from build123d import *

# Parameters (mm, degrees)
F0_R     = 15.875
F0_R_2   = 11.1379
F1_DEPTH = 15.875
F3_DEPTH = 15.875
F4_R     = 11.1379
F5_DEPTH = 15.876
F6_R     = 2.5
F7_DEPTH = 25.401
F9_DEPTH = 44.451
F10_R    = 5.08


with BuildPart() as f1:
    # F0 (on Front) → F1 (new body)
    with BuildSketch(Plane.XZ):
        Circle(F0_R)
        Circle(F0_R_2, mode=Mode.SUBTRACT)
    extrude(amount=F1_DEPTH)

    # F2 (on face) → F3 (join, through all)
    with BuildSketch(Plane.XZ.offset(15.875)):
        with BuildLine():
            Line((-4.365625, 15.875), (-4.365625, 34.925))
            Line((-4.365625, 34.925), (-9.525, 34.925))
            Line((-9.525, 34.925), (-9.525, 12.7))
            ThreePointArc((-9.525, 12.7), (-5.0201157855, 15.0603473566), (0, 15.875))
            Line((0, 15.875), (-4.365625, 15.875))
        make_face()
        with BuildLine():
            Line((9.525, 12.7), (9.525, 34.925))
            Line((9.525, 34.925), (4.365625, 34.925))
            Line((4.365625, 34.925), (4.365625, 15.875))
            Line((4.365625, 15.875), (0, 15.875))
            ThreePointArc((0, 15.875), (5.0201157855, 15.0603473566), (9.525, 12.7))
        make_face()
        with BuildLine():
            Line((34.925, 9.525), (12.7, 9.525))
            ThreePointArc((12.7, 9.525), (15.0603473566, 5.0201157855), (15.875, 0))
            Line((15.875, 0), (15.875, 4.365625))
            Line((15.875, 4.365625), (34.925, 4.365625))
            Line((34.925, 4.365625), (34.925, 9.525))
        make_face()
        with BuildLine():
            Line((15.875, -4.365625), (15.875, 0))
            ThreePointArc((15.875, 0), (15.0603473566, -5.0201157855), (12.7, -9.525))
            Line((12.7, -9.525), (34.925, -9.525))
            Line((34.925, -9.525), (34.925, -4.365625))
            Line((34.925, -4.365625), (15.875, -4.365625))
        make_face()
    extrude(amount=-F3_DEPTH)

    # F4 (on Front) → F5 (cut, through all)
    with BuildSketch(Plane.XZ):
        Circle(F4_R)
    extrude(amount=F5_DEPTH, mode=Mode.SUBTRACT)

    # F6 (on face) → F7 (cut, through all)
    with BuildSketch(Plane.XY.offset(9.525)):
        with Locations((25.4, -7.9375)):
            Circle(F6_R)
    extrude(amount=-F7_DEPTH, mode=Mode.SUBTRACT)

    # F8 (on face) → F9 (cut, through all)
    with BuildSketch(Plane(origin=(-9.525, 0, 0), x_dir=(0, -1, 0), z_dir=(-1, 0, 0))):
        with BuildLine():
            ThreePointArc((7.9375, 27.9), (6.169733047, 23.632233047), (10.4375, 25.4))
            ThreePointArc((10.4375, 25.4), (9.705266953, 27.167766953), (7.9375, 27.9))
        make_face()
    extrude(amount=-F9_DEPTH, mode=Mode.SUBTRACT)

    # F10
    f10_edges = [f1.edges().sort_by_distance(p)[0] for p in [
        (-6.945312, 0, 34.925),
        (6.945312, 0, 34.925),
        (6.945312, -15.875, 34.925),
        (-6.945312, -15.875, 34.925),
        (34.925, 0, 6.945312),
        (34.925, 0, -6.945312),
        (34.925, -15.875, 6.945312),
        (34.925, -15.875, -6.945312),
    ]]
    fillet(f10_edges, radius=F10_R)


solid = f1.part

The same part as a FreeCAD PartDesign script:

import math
import FreeCAD as App
import Part
import Sketcher
Q = App.Units.Quantity


def edges_at(feature, points):
    """Names of the edges that pass closest to the given points."""
    edges = feature.Shape.Edges
    near = lambda p: min(range(len(edges)), key=lambda i: edges[i].distToShape(Part.Vertex(*p))[0])
    return sorted({f"Edge{near(p) + 1}" for p in points})

doc = App.newDocument("Part")
body = doc.addObject("PartDesign::Body", "Body")

# Sketch on XZ plane
sketch1 = doc.addObject("Sketcher::SketchObject", "Sketch")
body.addObject(sketch1)
sketch1.AttachmentSupport = (doc.XZ_Plane, [""])
sketch1.MapMode = "FlatFace"
sketch1.addGeometry([
    Part.Circle(App.Vector(0, 0, 0), App.Vector(0, 0, 1), 16),
    Part.Circle(App.Vector(0, 0, 0), App.Vector(0, 0, 1), 11),
], False)
sketch1.addConstraint([
    Sketcher.Constraint("Coincident", 0, 3, -1, 1),
    Sketcher.Constraint("Coincident", 1, 3, -1, 1),
    Sketcher.Constraint("Diameter", 0, Q("1.25 in")),
    Sketcher.Constraint("Diameter", 1, Q("0.877 in")),
])
pad1 = doc.addObject("PartDesign::Pad", "Pad")
body.addObject(pad1)
pad1.Profile = sketch1
pad1.Length = Q("0.625 in")

# Sketch on XZ plane
sketch2 = doc.addObject("Sketcher::SketchObject", "Sketch001")
body.addObject(sketch2)
sketch2.AttachmentSupport = (doc.XZ_Plane, [""])
sketch2.MapMode = "FlatFace"
sketch2.AttachmentOffset = App.Placement(App.Vector(0, 0, 0.625 * 25.4), App.Rotation())
sketch2.addGeometry([
    Part.LineSegment(App.Vector(-4.4, 15.9, 0), App.Vector(-4.4, 34.9, 0)),  # 0
    Part.LineSegment(App.Vector(-4.4, 34.9, 0), App.Vector(-9.5, 34.9, 0)),  # 1
    Part.LineSegment(App.Vector(-9.5, 34.9, 0), App.Vector(-9.5, 12.7, 0)),  # 2
    Part.ArcOfCircle(Part.Circle(App.Vector(0, 0, 0), App.Vector(0, 0, 1), 15.9), math.radians(90), math.radians(127)),  # 3
    Part.LineSegment(App.Vector(0, 15.9, 0), App.Vector(-4.4, 15.9, 0)),  # 4
    Part.LineSegment(App.Vector(9.5, 12.7, 0), App.Vector(9.5, 34.9, 0)),  # 5
    Part.LineSegment(App.Vector(9.5, 34.9, 0), App.Vector(4.4, 34.9, 0)),  # 6
    Part.LineSegment(App.Vector(4.4, 34.9, 0), App.Vector(4.4, 15.9, 0)),  # 7
    Part.LineSegment(App.Vector(4.4, 15.9, 0), App.Vector(0, 15.9, 0)),  # 8
    Part.ArcOfCircle(Part.Circle(App.Vector(0, 0, 0), App.Vector(0, 0, 1), 15.9), math.radians(53), math.radians(90)),  # 9
    Part.LineSegment(App.Vector(34.9, 9.5, 0), App.Vector(12.7, 9.5, 0)),  # 10
    Part.ArcOfCircle(Part.Circle(App.Vector(0, 0, 0), App.Vector(0, 0, 1), 15.9), math.radians(0), math.radians(37)),  # 11
    Part.LineSegment(App.Vector(15.9, 0, 0), App.Vector(15.9, 4.4, 0)),  # 12
    Part.LineSegment(App.Vector(15.9, 4.4, 0), App.Vector(34.9, 4.4, 0)),  # 13
    Part.LineSegment(App.Vector(34.9, 4.4, 0), App.Vector(34.9, 9.5, 0)),  # 14
    Part.LineSegment(App.Vector(15.9, -4.4, 0), App.Vector(15.9, 0, 0)),  # 15
    Part.ArcOfCircle(Part.Circle(App.Vector(0, 0, 0), App.Vector(0, 0, 1), 15.9), math.radians(-37), math.radians(0)),  # 16
    Part.LineSegment(App.Vector(12.7, -9.5, 0), App.Vector(34.9, -9.5, 0)),  # 17
    Part.LineSegment(App.Vector(34.9, -9.5, 0), App.Vector(34.9, -4.4, 0)),  # 18
    Part.LineSegment(App.Vector(34.9, -4.4, 0), App.Vector(15.9, -4.4, 0)),  # 19
], False)
sketch2.addConstraint([
    Sketcher.Constraint("Coincident", 0, 2, 1, 1),
    Sketcher.Constraint("Coincident", 1, 2, 2, 1),
    Sketcher.Constraint("Coincident", 2, 2, 3, 2),
    Sketcher.Constraint("Tangent", 3, 1, 4, 1),
    Sketcher.Constraint("Coincident", 4, 2, 0, 1),
    Sketcher.Constraint("Coincident", 5, 2, 6, 1),
    Sketcher.Constraint("Coincident", 6, 2, 7, 1),
    Sketcher.Constraint("Coincident", 7, 2, 8, 1),
    Sketcher.Constraint("Tangent", 8, 2, 9, 2),
    Sketcher.Constraint("Coincident", 9, 1, 5, 1),
    Sketcher.Constraint("Coincident", 10, 2, 11, 2),
    Sketcher.Constraint("Tangent", 11, 1, 12, 1),
    Sketcher.Constraint("Coincident", 12, 2, 13, 1),
    Sketcher.Constraint("Coincident", 13, 2, 14, 1),
    Sketcher.Constraint("Coincident", 14, 2, 10, 1),
    Sketcher.Constraint("Tangent", 15, 2, 16, 2),
    Sketcher.Constraint("Coincident", 16, 1, 17, 1),
    Sketcher.Constraint("Coincident", 17, 2, 18, 1),
    Sketcher.Constraint("Coincident", 18, 2, 19, 1),
    Sketcher.Constraint("Coincident", 19, 2, 15, 1),
    Sketcher.Constraint("Vertical", 0),
    Sketcher.Constraint("Horizontal", 1),
    Sketcher.Constraint("Vertical", 2),
    Sketcher.Constraint("Horizontal", 4),
    Sketcher.Constraint("Vertical", 5),
    Sketcher.Constraint("Horizontal", 6),
    Sketcher.Constraint("Vertical", 7),
    Sketcher.Constraint("Horizontal", 8),
    Sketcher.Constraint("Horizontal", 10),
    Sketcher.Constraint("Vertical", 12),
    Sketcher.Constraint("Horizontal", 13),
    Sketcher.Constraint("Vertical", 14),
    Sketcher.Constraint("Vertical", 15),
    Sketcher.Constraint("Horizontal", 17),
    Sketcher.Constraint("Vertical", 18),
    Sketcher.Constraint("Horizontal", 19),
    Sketcher.Constraint("Coincident", 3, 3, -1, 1),
    Sketcher.Constraint("Coincident", 9, 3, -1, 1),
    Sketcher.Constraint("Coincident", 11, 3, -1, 1),
    Sketcher.Constraint("Coincident", 16, 3, -1, 1),
    Sketcher.Constraint("Equal", 3, 9),
    Sketcher.Constraint("Equal", 9, 11),
    Sketcher.Constraint("Equal", 11, 16),
    Sketcher.Constraint("Symmetric", 1, 2, 5, 2, -2),
    Sketcher.Constraint("Symmetric", 14, 2, 17, 2, -1),
    Sketcher.Constraint("Equal", 1, 6),
    Sketcher.Constraint("Equal", 19, 0),
    Sketcher.Constraint("Equal", 17, 2),
    Sketcher.Constraint("Equal", 8, 12),
    Sketcher.Constraint("Equal", 12, 15),
    Sketcher.Constraint("Radius", 3, Q("0.625 in")),
    Sketcher.Constraint("DistanceX", 9, 1, 13, 2, Q("1 in")),
    Sketcher.Constraint("DistanceX", 13, 1, 13, 2, Q("0.75 in")),
    Sketcher.Constraint("DistanceX", 1, 2, 1, 1, Q("0.203125 in")),
])
pad2 = doc.addObject("PartDesign::Pad", "Pad001")
body.addObject(pad2)
pad2.Profile = sketch2
pad2.Length = Q("0.625 in")
pad2.Reversed = True

# Sketch on XZ plane
sketch3 = doc.addObject("Sketcher::SketchObject", "Sketch002")
body.addObject(sketch3)
sketch3.AttachmentSupport = (doc.XZ_Plane, [""])
sketch3.MapMode = "FlatFace"
sketch3.addGeometry(Part.Circle(App.Vector(0, 0, 0), App.Vector(0, 0, 1), 11), False)
sketch3.addConstraint([
    Sketcher.Constraint("Coincident", 0, 3, -1, 1),
    Sketcher.Constraint("Diameter", 0, Q("0.877 in")),
])
pocket1 = doc.addObject("PartDesign::Pocket", "Pocket")
body.addObject(pocket1)
pocket1.Profile = sketch3
pocket1.Type = "ThroughAll"
pocket1.Reversed = True

# Sketch on XY plane
sketch4 = doc.addObject("Sketcher::SketchObject", "Sketch003")
body.addObject(sketch4)
sketch4.AttachmentSupport = (doc.XY_Plane, [""])
sketch4.MapMode = "FlatFace"
sketch4.AttachmentOffset = App.Placement(App.Vector(0, 0, 0.375 * 25.4), App.Rotation())
sketch4.addGeometry(Part.Circle(App.Vector(25.4, -7.9, 0), App.Vector(0, 0, 1), 2.5), False)
sketch4.addConstraint([
    Sketcher.Constraint("DistanceX", -1, 1, 0, 3, Q("1 in")),
    Sketcher.Constraint("Diameter", 0, Q("5 mm")),
    Sketcher.Constraint("DistanceY", 0, 3, -1, 1, Q("0.3125 in")),
])
pocket2 = doc.addObject("PartDesign::Pocket", "Pocket001")
body.addObject(pocket2)
pocket2.Profile = sketch4
pocket2.Type = "ThroughAll"

# Sketch on YZ plane
sketch5 = doc.addObject("Sketcher::SketchObject", "Sketch004")
body.addObject(sketch5)
sketch5.AttachmentSupport = (doc.YZ_Plane, [""])
sketch5.MapMode = "FlatFace"
sketch5.AttachmentOffset = App.Placement(App.Vector(0, 0, -0.375 * 25.4), App.Rotation())
sketch5.addGeometry([
    Part.ArcOfCircle(Part.Circle(App.Vector(-7.9, 25.4, 0), App.Vector(0, 0, 1), 2.5), math.radians(180), math.radians(450)),
    Part.ArcOfCircle(Part.Circle(App.Vector(-7.9, 25.4, 0), App.Vector(0, 0, 1), 2.5), math.radians(90), math.radians(180)),
], False)
sketch5.addConstraint([
    Sketcher.Constraint("Tangent", 0, 1, 1, 2),
    Sketcher.Constraint("Coincident", 1, 1, 0, 2),
    Sketcher.Constraint("Horizontal", 1, 3, 0, 1),
    Sketcher.Constraint("Vertical", 0, 3, 1, 1),
    Sketcher.Constraint("DistanceY", -1, 1, 0, 3, Q("1 in")),
    Sketcher.Constraint("Radius", 0, Q("2.5 mm")),
    Sketcher.Constraint("DistanceX", 0, 3, -1, 1, Q("0.3125 in")),
])
pocket3 = doc.addObject("PartDesign::Pocket", "Pocket002")
body.addObject(pocket3)
pocket3.Profile = sketch5
pocket3.Type = "ThroughAll"
pocket3.Reversed = True
doc.recompute()

fillet = doc.addObject("PartDesign::Fillet", "Fillet")
body.addObject(fillet)
fillet.Base = (pocket3, edges_at(pocket3, [
    (-6.945, 0, 34.925),
    (6.945, 0, 34.925),
    (6.945, -15.875, 34.925),
    (-6.945, -15.875, 34.925),
    (34.925, 0, 6.945),
    (34.925, 0, -6.945),
    (34.925, -15.875, 6.945),
    (34.925, -15.875, -6.945),
]))
fillet.Radius = Q("0.2 in")

doc.recompute()
